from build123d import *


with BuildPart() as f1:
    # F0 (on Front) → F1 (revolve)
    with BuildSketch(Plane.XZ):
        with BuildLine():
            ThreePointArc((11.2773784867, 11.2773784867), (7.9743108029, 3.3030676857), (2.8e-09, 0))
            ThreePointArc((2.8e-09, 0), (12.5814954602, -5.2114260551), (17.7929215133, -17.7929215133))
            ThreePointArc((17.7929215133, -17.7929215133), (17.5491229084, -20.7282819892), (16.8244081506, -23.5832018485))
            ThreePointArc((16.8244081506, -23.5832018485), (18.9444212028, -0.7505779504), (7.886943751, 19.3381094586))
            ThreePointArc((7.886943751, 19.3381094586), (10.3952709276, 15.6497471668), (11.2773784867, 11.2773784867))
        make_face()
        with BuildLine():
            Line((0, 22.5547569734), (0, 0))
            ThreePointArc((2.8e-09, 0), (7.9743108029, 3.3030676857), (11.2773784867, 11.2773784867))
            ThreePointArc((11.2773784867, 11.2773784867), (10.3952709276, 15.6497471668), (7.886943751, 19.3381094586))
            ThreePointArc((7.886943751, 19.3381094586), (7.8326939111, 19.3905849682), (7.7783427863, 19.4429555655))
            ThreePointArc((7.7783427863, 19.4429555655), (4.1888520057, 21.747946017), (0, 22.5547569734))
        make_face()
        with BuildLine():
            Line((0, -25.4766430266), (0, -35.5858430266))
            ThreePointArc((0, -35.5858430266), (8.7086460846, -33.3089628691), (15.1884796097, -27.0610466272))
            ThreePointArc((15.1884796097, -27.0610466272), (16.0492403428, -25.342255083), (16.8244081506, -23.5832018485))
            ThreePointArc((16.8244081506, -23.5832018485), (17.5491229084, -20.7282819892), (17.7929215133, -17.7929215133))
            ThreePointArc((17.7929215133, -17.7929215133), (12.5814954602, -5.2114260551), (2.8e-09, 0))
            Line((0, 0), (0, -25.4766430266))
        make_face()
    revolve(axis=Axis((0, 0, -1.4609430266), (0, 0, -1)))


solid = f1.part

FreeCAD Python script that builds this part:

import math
import FreeCAD as App
import Part
import Sketcher
Q = App.Units.Quantity

doc = App.newDocument("Part")
params = doc.addObject("Spreadsheet::Sheet", "Params")
for row, (alias, value) in enumerate([
    ("sketch1_radius", "1.538 in"),
    ("revolution_angle", "360 deg"),
], start=1):
    params.set(f"A{row}", alias)
    params.set(f"B{row}", "=" + value)
    params.setAlias(f"B{row}", alias)

body = doc.addObject("PartDesign::Body", "Body")

# Sketch on XZ plane
sketch1 = doc.addObject("Sketcher::SketchObject", "Sketch")
body.addObject(sketch1)
sketch1.AttachmentSupport = (doc.XZ_Plane, [""])
sketch1.MapMode = "FlatFace"
sketch1.addGeometry([
    Part.ArcOfCircle(Part.Circle(App.Vector(-19.300441, -8.71427, 0), App.Vector(0, 0, 1), 39.0652), math.radians(-22.37199), math.radians(45.897116)),  # 0
    Part.ArcOfCircle(Part.Circle(App.Vector(-19.300452, -8.714282, 0), App.Vector(0, 0, 1), 39.065217), math.radians(45.897116), math.radians(46.118515)),  # 1
    Part.ArcOfCircle(Part.Circle(App.Vector(0, 11.277378, 0), App.Vector(0, 0, 1), 11.277378), math.radians(46.391285), math.radians(90)),  # 2
    Part.LineSegment(App.Vector(0, 22.554757, 0), App.Vector(0, 0, 0)),  # 3
    Part.LineSegment(App.Vector(0, 0, 0), App.Vector(0, -35.585843, 0)),  # 4
    Part.ArcOfCircle(Part.Circle(App.Vector(0, -17.792922, 0), App.Vector(0, 0, 1), 17.792922), math.radians(-90), math.radians(-31.391858)),  # 5
    Part.ArcOfCircle(Part.Circle(App.Vector(-19.300441, -8.71427, 0), App.Vector(0, 0, 1), 39.0652), math.radians(-28.011257), math.radians(-22.37199)),  # 6
], False)
sketch1.addConstraint([
    Sketcher.Constraint("Tangent", 0, 2, 1, 1),
    Sketcher.Constraint("Coincident", 1, 2, 2, 1),
    Sketcher.Constraint("Coincident", 2, 2, 3, 1),
    Sketcher.Constraint("Coincident", 3, 2, 4, 1),
    Sketcher.Constraint("Coincident", 4, 2, 5, 1),
    Sketcher.Constraint("Coincident", 5, 2, 6, 1),
    Sketcher.Constraint("Tangent", 6, 2, 0, 1),
    Sketcher.Constraint("Vertical", 3),
    Sketcher.Constraint("Vertical", 4),
    Sketcher.Constraint("Coincident", 3, 2, -1, 1),
    Sketcher.Constraint("Equal", 0, 6),
    Sketcher.Constraint("PointOnObject", 2, 3, -2),
    Sketcher.Constraint("PointOnObject", 5, 3, -2),
    Sketcher.Constraint("Radius", 0, Q("1.538 in")),
    Sketcher.Constraint("Radius", 2, Q("11.277378 mm")),
    Sketcher.Constraint("Radius", 5, Q("17.792922 mm")),
    Sketcher.Constraint("Radius", 1, Q("39.065217 mm")),
    Sketcher.Constraint("DistanceY", 5, 3, 2, 3, Q("1.1445 in")),
    Sketcher.Constraint("DistanceY", 6, 2, -1, 1, Q("23.583202 mm")),
    Sketcher.Constraint("DistanceX", 1, 2, 0, 2, Q("0.108601 mm")),
    Sketcher.Constraint("DistanceY", 1, 2, 2, 2, Q("3.111801 mm")),
    Sketcher.Constraint("DistanceY", 3, 2, 3, 1, Q("22.554757 mm")),
    Sketcher.Constraint("DistanceX", 0, 3, -1, 1, Q("19.300441 mm")),
])
sketch1.setExpression("Constraints[13]", "Params.sketch1_radius")
revolution = doc.addObject("PartDesign::Revolution", "Revolution")
body.addObject(revolution)
revolution.Profile = sketch1
revolution.ReferenceAxis = (sketch1, ["V_Axis"])
revolution.setExpression("Angle", "Params.revolution_angle")

doc.recompute()
